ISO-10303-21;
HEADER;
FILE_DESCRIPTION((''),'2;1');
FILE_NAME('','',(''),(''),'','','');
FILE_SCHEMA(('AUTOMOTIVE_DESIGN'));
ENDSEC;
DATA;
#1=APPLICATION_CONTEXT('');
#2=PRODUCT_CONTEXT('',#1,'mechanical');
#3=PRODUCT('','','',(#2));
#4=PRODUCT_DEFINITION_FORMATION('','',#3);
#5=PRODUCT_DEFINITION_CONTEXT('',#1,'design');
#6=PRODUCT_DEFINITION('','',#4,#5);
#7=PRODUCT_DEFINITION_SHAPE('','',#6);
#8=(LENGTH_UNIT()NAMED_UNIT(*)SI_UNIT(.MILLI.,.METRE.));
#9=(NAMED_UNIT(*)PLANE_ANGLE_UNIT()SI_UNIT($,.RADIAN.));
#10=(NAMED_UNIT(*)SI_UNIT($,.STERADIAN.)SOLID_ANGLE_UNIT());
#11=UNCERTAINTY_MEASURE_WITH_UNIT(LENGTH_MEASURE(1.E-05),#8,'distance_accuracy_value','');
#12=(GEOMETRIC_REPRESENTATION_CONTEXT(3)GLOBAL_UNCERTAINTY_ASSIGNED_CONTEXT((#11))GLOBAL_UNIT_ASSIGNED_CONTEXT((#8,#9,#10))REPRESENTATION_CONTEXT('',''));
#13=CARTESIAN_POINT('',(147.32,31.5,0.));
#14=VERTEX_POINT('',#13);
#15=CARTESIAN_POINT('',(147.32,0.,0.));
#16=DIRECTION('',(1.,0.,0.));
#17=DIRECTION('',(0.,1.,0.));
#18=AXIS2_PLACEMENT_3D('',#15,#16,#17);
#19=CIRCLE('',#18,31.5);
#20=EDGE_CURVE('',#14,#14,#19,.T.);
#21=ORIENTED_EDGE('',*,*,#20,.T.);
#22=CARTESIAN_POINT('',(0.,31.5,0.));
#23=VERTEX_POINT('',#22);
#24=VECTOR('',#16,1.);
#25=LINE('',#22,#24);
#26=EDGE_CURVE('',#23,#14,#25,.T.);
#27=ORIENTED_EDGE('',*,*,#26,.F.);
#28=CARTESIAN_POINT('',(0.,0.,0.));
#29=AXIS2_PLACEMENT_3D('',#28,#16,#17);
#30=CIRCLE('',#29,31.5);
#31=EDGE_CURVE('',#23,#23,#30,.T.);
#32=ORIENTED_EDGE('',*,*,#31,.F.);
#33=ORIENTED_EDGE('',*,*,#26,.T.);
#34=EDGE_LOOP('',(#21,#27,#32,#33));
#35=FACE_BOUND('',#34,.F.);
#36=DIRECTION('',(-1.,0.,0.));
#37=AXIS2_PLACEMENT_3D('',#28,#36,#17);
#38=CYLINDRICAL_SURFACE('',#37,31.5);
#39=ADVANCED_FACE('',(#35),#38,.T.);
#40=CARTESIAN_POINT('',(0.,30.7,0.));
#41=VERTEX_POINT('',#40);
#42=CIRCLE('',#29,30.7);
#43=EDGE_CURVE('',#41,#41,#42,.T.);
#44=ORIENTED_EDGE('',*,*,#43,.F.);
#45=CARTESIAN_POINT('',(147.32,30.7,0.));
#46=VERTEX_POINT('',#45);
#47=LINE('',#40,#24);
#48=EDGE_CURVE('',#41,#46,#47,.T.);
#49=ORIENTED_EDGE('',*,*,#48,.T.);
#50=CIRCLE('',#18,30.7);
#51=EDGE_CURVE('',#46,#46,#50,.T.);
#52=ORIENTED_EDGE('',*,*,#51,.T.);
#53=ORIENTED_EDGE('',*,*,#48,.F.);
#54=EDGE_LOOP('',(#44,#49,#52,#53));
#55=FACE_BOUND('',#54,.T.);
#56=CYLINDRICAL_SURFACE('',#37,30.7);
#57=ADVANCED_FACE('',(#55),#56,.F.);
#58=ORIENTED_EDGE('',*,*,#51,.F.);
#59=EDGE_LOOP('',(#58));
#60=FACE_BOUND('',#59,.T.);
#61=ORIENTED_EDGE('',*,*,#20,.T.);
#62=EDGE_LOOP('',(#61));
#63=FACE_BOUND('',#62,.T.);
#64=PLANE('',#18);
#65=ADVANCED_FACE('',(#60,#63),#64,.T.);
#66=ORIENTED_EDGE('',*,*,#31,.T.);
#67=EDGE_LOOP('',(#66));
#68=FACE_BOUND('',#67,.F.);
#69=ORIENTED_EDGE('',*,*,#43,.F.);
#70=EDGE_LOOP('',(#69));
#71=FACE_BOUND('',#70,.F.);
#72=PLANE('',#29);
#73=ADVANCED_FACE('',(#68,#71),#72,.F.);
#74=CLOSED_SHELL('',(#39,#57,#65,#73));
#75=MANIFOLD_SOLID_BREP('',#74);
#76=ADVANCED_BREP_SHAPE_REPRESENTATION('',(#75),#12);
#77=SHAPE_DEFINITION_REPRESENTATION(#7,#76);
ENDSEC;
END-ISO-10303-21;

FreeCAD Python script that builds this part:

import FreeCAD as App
import Part
import Sketcher

doc = App.newDocument("Part")
params = doc.addObject("Spreadsheet::Sheet", "Params")
for row, (alias, value) in enumerate([
    ("sketch1_diameter", "63 mm"),
    ("sketch1_diameter2", "61.4 mm"),
    ("pad1_length", "147.32 mm"),
], start=1):
    params.set(f"A{row}", alias)
    params.set(f"B{row}", "=" + value)
    params.setAlias(f"B{row}", alias)

body = doc.addObject("PartDesign::Body", "Body")

# Sketch on YZ plane
sketch1 = body.newObject("Sketcher::SketchObject", "Sketch")
sketch1.AttachmentSupport = (doc.getObject("YZ_Plane"), [""])
sketch1.MapMode = "FlatFace"
sketch1.addGeometry([
    Part.Circle(App.Vector(0, 0, 0), App.Vector(0, 0, 1), 32),
    Part.Circle(App.Vector(0, 0, 0), App.Vector(0, 0, 1), 31),
], False)
sketch1.addConstraint([
    Sketcher.Constraint("Coincident", 0, 3, -1, 1),
    Sketcher.Constraint("Coincident", 1, 3, -1, 1),
    Sketcher.Constraint("Diameter", 0, 63.0),
    Sketcher.Constraint("Diameter", 1, 61.4),
])
sketch1.setExpression("Constraints[2]", "Params.sketch1_diameter")
sketch1.setExpression("Constraints[3]", "Params.sketch1_diameter2")
pad1 = body.newObject("PartDesign::Pad", "Pad")
pad1.Profile = sketch1
pad1.setExpression("Length", "Params.pad1_length")

doc.recompute()
